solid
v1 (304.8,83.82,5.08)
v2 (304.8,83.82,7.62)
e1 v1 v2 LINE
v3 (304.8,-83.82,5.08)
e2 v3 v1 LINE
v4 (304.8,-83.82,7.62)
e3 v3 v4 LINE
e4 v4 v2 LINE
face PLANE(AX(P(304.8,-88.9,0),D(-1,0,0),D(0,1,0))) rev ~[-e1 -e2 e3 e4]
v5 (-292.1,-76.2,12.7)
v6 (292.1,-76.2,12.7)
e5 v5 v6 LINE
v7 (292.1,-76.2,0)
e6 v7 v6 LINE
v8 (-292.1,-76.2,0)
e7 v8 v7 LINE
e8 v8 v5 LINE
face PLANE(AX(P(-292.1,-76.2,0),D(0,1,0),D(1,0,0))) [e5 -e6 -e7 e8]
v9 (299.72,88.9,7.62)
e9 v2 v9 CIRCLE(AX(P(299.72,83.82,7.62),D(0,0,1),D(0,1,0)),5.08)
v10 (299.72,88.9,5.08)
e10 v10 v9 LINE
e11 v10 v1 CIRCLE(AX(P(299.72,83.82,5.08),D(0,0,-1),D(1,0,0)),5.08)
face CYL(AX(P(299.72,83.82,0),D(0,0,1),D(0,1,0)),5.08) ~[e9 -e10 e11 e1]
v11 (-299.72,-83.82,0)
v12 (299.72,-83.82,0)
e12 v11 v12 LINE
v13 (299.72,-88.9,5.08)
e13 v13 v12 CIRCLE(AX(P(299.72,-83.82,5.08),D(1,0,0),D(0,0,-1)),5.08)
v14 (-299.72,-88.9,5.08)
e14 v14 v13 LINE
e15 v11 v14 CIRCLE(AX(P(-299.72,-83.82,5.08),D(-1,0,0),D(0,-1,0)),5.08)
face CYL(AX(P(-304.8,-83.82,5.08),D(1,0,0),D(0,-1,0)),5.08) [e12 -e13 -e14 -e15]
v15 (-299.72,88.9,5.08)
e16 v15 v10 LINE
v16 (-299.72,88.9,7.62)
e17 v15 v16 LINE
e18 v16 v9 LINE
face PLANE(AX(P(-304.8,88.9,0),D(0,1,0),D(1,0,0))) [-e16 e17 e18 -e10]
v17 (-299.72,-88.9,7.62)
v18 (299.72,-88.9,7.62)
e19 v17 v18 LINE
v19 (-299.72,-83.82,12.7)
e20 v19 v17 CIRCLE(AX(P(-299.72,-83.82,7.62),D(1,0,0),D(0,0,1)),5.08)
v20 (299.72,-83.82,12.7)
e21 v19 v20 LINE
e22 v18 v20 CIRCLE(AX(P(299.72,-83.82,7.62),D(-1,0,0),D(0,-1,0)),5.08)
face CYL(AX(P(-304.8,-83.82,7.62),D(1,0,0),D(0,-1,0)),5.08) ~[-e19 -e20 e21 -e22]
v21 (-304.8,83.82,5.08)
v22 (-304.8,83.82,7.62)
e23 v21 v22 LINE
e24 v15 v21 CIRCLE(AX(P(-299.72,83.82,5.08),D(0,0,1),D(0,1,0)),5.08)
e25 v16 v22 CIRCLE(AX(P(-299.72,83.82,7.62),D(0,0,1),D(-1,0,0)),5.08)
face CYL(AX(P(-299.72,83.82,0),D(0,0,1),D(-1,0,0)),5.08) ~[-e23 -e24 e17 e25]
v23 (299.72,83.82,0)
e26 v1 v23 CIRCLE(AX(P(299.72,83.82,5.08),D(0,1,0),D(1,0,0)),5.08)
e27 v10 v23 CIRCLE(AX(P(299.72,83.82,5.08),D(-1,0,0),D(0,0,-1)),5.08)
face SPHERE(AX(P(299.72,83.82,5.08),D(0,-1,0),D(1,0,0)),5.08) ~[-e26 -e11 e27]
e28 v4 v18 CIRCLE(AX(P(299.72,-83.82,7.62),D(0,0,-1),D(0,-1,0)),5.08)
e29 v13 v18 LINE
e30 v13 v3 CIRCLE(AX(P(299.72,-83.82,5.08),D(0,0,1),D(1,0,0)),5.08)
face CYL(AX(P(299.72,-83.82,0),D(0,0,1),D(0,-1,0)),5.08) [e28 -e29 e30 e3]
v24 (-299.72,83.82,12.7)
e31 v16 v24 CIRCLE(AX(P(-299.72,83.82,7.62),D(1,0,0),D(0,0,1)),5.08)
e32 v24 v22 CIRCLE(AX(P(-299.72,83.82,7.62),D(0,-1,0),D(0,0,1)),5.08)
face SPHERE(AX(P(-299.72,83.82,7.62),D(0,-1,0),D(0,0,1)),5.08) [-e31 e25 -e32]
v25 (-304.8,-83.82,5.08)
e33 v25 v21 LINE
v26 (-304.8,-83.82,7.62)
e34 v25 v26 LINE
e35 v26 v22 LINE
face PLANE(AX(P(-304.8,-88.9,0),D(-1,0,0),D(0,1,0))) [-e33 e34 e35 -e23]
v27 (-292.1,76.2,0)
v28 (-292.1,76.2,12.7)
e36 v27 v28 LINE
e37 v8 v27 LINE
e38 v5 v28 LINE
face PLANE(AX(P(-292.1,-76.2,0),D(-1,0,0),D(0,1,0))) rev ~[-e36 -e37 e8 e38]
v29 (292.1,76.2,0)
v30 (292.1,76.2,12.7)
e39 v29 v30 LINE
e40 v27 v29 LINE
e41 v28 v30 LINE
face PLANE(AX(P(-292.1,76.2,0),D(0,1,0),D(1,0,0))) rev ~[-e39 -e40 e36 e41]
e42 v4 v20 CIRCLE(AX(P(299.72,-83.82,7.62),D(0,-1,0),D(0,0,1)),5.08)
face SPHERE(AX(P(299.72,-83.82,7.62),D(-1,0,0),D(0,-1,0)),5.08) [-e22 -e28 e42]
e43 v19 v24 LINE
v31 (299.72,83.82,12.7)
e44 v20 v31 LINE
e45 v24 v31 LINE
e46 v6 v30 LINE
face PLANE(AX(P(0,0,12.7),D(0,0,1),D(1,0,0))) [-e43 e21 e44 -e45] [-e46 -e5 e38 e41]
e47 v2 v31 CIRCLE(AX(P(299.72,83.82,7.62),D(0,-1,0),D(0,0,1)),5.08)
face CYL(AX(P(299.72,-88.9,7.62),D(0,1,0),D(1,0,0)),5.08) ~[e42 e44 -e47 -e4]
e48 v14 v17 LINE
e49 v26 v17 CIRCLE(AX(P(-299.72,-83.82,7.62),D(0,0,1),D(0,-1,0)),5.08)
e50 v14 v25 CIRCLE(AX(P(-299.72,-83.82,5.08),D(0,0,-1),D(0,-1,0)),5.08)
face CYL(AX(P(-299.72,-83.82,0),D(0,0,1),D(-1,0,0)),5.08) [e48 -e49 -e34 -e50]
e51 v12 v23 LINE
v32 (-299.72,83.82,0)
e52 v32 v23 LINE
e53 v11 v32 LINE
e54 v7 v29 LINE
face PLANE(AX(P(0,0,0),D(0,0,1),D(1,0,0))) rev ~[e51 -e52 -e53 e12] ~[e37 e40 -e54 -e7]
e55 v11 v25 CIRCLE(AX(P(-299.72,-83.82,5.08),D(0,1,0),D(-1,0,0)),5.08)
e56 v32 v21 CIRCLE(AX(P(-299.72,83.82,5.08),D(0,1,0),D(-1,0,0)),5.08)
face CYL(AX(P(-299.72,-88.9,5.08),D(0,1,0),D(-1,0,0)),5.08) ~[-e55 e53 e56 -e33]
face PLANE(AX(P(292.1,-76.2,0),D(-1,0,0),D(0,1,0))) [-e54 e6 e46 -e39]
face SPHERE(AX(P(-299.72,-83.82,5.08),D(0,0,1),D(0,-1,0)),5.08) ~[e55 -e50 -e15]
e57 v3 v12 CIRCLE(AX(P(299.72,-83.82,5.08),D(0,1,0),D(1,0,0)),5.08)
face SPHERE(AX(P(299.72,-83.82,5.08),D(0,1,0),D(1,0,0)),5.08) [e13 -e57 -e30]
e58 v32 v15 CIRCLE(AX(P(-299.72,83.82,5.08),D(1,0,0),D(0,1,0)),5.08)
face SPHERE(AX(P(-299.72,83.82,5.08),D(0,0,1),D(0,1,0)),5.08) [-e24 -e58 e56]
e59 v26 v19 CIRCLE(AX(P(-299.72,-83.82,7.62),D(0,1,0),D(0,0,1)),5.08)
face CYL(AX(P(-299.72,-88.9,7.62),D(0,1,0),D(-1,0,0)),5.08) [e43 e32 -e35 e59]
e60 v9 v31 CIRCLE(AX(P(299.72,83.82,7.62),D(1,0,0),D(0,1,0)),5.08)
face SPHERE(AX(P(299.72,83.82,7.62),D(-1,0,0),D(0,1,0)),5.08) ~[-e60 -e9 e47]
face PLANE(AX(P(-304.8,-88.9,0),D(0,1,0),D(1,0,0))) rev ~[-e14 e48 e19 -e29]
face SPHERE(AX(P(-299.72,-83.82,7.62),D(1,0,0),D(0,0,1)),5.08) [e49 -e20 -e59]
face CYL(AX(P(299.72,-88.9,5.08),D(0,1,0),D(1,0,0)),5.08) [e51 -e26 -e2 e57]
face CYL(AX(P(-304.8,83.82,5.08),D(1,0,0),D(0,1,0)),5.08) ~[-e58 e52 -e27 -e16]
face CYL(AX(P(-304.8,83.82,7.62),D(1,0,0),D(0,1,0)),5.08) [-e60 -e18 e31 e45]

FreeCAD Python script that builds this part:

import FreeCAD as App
import Part
import Sketcher
from FreeCAD import Vector
Q = App.Units.Quantity


def edges_at(feature, points):
    """Names of the edges that pass closest to the given points."""
    edges = feature.Shape.Edges
    near = lambda p: min(range(len(edges)), key=lambda i: edges[i].distToShape(Part.Vertex(*p))[0])
    return sorted({f"Edge{near(p) + 1}" for p in points})

doc = App.newDocument("Part")
body = doc.addObject("PartDesign::Body", "Body")

# Sketch on XY plane
sketch1 = doc.addObject("Sketcher::SketchObject", "Sketch")
body.addObject(sketch1)
sketch1.AttachmentSupport = (doc.XY_Plane, [""])
sketch1.MapMode = "FlatFace"
sketch1.addGeometry([
    Part.LineSegment(Vector(-305, 89, 0), Vector(-305, -89, 0)),  # 0
    Part.LineSegment(Vector(-305, -89, 0), Vector(305, -89, 0)),  # 1
    Part.LineSegment(Vector(305, -89, 0), Vector(305, 89, 0)),  # 2
    Part.LineSegment(Vector(305, 89, 0), Vector(-305, 89, 0)),  # 3
    Part.LineSegment(Vector(292, -76, 0), Vector(-292, -76, 0)),  # 4
    Part.LineSegment(Vector(-292, -76, 0), Vector(-292, 76, 0)),  # 5
    Part.LineSegment(Vector(-292, 76, 0), Vector(292, 76, 0)),  # 6
    Part.LineSegment(Vector(292, 76, 0), Vector(292, -76, 0)),  # 7
], False)
sketch1.addConstraint([
    Sketcher.Constraint("Coincident", 0, 2, 1, 1),
    Sketcher.Constraint("Coincident", 1, 2, 2, 1),
    Sketcher.Constraint("Coincident", 2, 2, 3, 1),
    Sketcher.Constraint("Coincident", 3, 2, 0, 1),
    Sketcher.Constraint("Coincident", 4, 2, 5, 1),
    Sketcher.Constraint("Coincident", 5, 2, 6, 1),
    Sketcher.Constraint("Coincident", 6, 2, 7, 1),
    Sketcher.Constraint("Coincident", 7, 2, 4, 1),
    Sketcher.Constraint("Vertical", 0),
    Sketcher.Constraint("Horizontal", 1),
    Sketcher.Constraint("Vertical", 2),
    Sketcher.Constraint("Horizontal", 3),
    Sketcher.Constraint("Horizontal", 4),
    Sketcher.Constraint("Vertical", 5),
    Sketcher.Constraint("Horizontal", 6),
    Sketcher.Constraint("Vertical", 7),
    Sketcher.Constraint("Symmetric", 0, 2, 2, 2, -1, 1),
    Sketcher.Constraint("Symmetric", 4, 2, 6, 2, -1, 1),
    Sketcher.Constraint("DistanceX", 1, 1, 1, 2, Q("24 in")),
    Sketcher.Constraint("DistanceX", 4, 2, 4, 1, Q("23 in")),
    Sketcher.Constraint("DistanceY", 0, 2, 0, 1, Q("7 in")),
    Sketcher.Constraint("DistanceY", 5, 1, 5, 2, Q("6 in")),
])
pad1 = doc.addObject("PartDesign::Pad", "Pad")
body.addObject(pad1)
pad1.Profile = sketch1
pad1.Length = Q("0.5 in")
doc.recompute()

fillet = doc.addObject("PartDesign::Fillet", "Fillet")
body.addObject(fillet)
fillet.Base = (pad1, edges_at(pad1, [
    (0, -88.9, 12.7),
    (-304.8, 0, 12.7),
    (304.8, 0, 0),
    (0, 88.9, 12.7),
    (304.8, 88.9, 6.35),
    (304.8, -88.9, 6.35),
    (-304.8, -88.9, 6.35),
    (-304.8, 88.9, 6.35),
    (304.8, 0, 12.7),
    (0, -88.9, 0),
    (0, 88.9, 0),
    (-304.8, 0, 0),
]))
fillet.Radius = Q("0.2 in")

doc.recompute()
